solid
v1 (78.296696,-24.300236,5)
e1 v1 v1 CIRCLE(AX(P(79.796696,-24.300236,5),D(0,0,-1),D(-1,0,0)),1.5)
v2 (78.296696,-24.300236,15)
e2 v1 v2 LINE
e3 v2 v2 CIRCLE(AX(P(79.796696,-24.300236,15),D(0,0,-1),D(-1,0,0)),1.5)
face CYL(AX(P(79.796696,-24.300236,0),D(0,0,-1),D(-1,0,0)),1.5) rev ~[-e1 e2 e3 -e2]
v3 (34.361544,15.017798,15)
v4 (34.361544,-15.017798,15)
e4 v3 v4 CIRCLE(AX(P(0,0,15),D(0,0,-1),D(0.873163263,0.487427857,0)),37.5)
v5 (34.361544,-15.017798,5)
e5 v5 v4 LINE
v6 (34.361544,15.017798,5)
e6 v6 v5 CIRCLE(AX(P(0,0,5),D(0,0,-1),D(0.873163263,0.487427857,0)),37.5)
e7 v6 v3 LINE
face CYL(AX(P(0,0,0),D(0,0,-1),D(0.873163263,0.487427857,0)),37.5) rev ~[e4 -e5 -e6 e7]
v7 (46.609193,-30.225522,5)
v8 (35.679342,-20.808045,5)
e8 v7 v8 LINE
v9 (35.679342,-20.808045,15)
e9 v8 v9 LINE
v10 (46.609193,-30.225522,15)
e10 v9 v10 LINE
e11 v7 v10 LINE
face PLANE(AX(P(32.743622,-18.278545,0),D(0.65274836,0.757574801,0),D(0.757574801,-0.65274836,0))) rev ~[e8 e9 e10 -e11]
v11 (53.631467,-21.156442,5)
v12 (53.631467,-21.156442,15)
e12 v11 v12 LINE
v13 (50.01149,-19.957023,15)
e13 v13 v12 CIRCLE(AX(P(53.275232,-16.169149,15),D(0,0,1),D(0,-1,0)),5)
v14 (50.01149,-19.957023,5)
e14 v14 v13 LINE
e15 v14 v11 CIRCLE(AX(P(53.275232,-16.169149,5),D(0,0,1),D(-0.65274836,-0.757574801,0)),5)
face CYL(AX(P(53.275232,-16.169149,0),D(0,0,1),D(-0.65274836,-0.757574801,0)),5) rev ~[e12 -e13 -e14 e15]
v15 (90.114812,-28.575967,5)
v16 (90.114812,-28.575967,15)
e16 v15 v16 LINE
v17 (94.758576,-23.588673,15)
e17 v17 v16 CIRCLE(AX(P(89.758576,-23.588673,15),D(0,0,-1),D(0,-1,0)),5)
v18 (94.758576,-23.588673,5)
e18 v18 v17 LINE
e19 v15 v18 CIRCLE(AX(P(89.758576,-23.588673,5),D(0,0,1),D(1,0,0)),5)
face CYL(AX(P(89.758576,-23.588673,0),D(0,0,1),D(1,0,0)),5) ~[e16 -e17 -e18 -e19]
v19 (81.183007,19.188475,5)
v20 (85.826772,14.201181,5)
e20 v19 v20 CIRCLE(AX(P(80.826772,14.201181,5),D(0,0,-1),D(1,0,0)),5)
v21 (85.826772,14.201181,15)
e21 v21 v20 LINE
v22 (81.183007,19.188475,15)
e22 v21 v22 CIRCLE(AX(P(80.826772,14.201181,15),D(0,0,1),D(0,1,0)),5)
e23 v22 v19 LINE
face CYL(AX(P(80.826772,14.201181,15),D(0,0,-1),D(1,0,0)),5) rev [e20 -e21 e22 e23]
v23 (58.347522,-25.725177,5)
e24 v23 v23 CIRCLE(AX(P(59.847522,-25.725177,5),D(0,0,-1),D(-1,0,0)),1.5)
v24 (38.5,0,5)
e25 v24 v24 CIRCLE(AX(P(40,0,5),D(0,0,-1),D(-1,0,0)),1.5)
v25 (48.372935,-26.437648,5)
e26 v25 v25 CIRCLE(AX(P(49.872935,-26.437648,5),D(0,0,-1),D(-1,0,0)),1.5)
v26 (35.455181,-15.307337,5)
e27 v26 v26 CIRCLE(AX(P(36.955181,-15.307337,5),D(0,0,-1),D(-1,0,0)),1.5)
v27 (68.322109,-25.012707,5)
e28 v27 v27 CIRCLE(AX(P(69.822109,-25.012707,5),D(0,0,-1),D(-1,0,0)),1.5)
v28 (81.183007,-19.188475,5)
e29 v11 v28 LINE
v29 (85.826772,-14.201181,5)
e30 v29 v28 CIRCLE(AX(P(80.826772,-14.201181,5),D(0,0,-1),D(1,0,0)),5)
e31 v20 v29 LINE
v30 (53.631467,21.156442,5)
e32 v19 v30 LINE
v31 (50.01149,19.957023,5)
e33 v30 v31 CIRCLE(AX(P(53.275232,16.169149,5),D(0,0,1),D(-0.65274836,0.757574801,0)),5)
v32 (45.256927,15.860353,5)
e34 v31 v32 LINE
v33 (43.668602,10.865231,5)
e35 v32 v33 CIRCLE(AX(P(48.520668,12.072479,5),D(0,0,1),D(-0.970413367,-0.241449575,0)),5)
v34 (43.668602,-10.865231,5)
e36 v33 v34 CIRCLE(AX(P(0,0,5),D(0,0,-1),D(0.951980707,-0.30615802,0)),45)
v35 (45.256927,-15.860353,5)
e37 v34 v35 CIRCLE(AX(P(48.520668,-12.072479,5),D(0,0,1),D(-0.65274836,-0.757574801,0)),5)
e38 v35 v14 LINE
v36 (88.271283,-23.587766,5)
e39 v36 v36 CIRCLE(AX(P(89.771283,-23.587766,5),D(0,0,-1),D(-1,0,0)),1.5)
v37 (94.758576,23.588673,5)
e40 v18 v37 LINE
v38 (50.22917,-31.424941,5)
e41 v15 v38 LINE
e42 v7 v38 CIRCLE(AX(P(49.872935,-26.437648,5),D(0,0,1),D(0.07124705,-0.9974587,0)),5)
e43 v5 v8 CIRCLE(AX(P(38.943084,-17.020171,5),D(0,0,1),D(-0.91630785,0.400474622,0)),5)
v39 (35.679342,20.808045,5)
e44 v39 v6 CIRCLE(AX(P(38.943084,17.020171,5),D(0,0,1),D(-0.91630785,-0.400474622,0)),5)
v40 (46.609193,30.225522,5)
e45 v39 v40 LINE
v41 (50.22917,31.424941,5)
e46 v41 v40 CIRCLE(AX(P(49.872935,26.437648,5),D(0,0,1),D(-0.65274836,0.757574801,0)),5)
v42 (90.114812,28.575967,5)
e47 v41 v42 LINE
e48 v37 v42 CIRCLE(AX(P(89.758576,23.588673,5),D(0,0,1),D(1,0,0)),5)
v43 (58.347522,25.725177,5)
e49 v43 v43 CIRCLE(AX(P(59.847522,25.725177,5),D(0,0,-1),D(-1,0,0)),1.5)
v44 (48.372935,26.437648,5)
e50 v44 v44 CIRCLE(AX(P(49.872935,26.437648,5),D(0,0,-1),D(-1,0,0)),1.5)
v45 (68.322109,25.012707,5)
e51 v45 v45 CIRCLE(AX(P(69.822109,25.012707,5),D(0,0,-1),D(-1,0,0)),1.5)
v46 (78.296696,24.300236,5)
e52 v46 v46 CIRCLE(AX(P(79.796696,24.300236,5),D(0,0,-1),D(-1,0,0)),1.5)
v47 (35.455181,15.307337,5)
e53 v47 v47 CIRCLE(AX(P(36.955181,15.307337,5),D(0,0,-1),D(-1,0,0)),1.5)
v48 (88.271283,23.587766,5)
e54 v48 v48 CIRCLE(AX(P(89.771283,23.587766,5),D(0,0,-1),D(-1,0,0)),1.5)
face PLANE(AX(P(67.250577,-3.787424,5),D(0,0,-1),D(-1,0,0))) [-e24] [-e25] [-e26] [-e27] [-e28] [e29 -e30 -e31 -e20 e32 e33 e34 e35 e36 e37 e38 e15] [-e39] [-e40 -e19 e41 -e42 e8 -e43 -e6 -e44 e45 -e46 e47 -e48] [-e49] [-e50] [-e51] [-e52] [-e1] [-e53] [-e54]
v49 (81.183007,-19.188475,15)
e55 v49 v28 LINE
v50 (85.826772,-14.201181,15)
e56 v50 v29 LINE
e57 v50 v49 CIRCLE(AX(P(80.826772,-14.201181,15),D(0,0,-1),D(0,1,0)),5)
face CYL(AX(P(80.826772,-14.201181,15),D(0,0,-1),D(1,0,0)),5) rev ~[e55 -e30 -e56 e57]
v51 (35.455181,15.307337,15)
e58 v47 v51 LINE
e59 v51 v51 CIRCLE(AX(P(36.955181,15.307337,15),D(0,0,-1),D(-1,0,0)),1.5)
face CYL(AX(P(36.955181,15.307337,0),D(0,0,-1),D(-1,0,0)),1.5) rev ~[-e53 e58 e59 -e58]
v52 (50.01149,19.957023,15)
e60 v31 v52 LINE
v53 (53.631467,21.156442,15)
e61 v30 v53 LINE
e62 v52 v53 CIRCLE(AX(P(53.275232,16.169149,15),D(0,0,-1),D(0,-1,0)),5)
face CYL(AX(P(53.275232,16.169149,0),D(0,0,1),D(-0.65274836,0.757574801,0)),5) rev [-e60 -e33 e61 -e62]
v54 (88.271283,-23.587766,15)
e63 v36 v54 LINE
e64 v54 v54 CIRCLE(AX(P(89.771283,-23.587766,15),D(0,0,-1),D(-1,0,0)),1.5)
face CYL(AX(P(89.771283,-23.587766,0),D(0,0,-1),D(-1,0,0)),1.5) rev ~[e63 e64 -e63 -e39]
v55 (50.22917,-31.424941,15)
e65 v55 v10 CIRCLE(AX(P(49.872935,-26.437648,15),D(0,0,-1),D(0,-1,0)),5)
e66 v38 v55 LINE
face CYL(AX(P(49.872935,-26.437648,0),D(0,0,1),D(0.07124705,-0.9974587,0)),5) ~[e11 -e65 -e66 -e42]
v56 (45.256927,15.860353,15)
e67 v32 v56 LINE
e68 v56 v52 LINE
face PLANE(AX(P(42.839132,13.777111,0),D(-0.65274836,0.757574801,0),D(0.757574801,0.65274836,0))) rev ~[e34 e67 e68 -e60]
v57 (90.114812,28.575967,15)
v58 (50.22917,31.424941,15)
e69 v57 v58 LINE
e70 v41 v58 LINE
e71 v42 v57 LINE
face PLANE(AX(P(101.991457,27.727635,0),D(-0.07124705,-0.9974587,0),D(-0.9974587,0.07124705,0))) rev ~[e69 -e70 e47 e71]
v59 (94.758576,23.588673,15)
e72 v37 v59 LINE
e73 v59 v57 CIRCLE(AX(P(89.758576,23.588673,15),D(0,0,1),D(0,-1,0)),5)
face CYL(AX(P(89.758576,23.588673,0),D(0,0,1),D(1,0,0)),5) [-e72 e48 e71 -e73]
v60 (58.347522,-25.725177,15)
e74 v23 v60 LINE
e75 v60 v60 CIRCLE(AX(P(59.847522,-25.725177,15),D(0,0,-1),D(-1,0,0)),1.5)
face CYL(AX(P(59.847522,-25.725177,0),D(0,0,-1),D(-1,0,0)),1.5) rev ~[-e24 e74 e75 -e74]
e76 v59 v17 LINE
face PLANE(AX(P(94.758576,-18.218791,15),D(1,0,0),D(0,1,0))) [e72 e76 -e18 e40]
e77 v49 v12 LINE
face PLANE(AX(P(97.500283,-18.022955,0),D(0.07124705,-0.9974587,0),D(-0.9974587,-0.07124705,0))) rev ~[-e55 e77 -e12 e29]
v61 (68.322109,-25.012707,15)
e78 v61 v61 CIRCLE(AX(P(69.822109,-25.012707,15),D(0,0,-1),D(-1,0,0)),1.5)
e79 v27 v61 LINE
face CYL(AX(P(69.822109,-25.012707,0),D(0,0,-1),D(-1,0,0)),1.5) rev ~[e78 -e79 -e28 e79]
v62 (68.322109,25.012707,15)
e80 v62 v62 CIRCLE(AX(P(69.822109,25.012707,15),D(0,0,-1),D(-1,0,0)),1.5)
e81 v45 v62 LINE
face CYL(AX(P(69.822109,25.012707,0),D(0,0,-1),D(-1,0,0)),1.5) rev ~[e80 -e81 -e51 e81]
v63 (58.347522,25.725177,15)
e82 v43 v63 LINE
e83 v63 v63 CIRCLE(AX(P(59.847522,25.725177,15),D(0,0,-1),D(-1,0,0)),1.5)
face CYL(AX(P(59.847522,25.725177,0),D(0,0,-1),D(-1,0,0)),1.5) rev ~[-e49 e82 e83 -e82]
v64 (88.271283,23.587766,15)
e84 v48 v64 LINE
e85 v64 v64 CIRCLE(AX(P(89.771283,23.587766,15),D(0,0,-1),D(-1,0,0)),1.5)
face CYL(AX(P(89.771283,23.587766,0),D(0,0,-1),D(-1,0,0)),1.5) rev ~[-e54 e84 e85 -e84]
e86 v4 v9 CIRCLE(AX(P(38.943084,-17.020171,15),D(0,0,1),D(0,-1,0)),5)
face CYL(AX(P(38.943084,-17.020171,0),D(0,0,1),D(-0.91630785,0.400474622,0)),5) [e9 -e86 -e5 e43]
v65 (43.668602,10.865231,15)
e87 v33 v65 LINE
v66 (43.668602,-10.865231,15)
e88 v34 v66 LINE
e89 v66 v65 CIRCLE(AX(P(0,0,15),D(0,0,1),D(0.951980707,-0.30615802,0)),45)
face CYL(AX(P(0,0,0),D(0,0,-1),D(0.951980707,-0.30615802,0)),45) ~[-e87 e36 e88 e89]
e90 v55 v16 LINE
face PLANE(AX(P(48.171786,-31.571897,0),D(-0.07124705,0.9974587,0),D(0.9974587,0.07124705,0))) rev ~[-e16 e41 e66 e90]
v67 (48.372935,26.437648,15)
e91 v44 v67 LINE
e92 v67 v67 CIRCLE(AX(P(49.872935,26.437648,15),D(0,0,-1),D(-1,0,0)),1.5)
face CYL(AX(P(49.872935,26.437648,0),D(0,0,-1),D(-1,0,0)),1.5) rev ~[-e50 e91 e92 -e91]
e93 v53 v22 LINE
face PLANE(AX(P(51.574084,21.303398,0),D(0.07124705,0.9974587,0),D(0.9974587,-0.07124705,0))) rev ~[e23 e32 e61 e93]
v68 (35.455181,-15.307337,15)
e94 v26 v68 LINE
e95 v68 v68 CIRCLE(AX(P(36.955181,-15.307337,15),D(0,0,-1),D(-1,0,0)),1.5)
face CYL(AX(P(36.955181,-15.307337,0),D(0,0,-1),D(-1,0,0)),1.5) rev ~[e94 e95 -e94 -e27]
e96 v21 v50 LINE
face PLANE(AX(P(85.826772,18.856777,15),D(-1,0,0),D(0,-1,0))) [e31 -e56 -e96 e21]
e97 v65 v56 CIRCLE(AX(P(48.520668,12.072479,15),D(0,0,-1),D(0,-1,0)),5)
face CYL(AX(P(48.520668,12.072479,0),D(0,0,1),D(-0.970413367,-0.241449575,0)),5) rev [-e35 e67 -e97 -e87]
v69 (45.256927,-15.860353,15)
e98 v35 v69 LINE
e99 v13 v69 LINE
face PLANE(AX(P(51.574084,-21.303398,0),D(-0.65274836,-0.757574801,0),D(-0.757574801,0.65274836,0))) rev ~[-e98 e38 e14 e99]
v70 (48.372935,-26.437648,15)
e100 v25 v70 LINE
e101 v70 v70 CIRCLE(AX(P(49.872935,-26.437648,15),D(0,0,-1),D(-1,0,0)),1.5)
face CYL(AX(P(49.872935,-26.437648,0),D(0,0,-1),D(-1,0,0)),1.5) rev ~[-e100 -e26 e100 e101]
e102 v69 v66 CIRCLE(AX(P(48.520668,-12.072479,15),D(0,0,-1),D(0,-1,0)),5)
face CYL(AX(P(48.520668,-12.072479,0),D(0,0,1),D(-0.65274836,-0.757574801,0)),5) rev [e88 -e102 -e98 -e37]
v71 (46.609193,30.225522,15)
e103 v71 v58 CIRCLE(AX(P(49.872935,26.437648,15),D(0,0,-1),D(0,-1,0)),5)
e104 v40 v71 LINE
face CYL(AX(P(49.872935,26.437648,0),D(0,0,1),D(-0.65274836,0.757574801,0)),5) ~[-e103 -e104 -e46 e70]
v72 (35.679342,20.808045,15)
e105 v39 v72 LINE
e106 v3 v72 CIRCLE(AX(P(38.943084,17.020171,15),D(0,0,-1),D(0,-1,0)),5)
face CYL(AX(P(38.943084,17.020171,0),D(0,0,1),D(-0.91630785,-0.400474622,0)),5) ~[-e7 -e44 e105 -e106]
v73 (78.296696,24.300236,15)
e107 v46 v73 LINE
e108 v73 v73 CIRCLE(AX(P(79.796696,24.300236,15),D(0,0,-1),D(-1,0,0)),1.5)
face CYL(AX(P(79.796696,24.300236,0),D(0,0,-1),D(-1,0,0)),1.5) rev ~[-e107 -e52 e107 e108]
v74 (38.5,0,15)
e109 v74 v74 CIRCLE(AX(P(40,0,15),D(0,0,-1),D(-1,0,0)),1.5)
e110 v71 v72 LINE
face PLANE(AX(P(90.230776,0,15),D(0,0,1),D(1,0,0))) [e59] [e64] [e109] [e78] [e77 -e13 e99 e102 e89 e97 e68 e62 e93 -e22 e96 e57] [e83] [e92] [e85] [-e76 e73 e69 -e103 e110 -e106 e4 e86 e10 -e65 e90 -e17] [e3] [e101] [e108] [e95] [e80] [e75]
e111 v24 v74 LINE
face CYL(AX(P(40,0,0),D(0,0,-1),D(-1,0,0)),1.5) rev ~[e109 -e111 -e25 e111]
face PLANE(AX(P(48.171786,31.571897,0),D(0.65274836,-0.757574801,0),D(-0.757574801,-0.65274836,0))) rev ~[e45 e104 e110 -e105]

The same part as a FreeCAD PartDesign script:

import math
import FreeCAD as App
import Part
import Sketcher
Q = App.Units.Quantity


def edges_at(feature, points):
    """Names of the edges that pass closest to the given points."""
    edges = feature.Shape.Edges
    near = lambda p: min(range(len(edges)), key=lambda i: edges[i].distToShape(Part.Vertex(*p))[0])
    return sorted({f"Edge{near(p) + 1}" for p in points})


def add_polygon(sketch, points):
    """Adds a closed chain of lines whose ends are joined by coincident constraints."""
    first, n = sketch.GeometryCount, len(points)
    for a, b in zip(points, points[1:] + points[:1]):
        sketch.addGeometry(Part.LineSegment(App.Vector(*a, 0), App.Vector(*b, 0)), False)
    for i in range(n):
        sketch.addConstraint(Sketcher.Constraint("Coincident", first + i, 2, first + (i + 1) % n, 1))

doc = App.newDocument("Part")
body = doc.addObject("PartDesign::Body", "Body")

# Sketch on XY plane
sketch1 = doc.addObject("Sketcher::SketchObject", "Sketch")
body.addObject(sketch1)
sketch1.AttachmentSupport = (doc.XY_Plane, [""])
sketch1.MapMode = "FlatFace"
sketch1.addGeometry([
    Part.LineSegment(App.Vector(102, -28, 0), App.Vector(114, -15, 0)),  # 0
    Part.ArcOfCircle(Part.Circle(App.Vector(140, 0, 0), App.Vector(0, 0, 1), 30), math.radians(149), math.radians(211)),  # 1
    Part.LineSegment(App.Vector(114, 15, 0), App.Vector(102, 28, 0)),  # 2
    Part.LineSegment(App.Vector(102, 28, 0), App.Vector(48, 32, 0)),  # 3
    Part.LineSegment(App.Vector(48, 32, 0), App.Vector(33, 18, 0)),  # 4
    Part.ArcOfCircle(Part.Circle(App.Vector(0, 0, 0), App.Vector(0, 0, 1), 38), math.radians(-29), math.radians(29)),  # 5
    Part.LineSegment(App.Vector(33, -18, 0), App.Vector(48, -32, 0)),  # 6
    Part.LineSegment(App.Vector(48, -32, 0), App.Vector(102, -28, 0)),  # 7
    Part.LineSegment(App.Vector(52, -21, 0), App.Vector(43, -14, 0)),  # 8
    Part.ArcOfCircle(Part.Circle(App.Vector(0, 0, 0), App.Vector(0, 0, 1), 45), math.radians(-18), math.radians(18)),  # 9
    Part.LineSegment(App.Vector(43, 14, 0), App.Vector(52, 21, 0)),  # 10
    Part.LineSegment(App.Vector(52, 21, 0), App.Vector(98, 18, 0)),  # 11
    Part.LineSegment(App.Vector(98, 18, 0), App.Vector(106, 9, 0)),  # 12
    Part.ArcOfCircle(Part.Circle(App.Vector(140, 0, 0), App.Vector(0, 0, 1), 35), math.radians(165), math.radians(195)),  # 13
    Part.LineSegment(App.Vector(106, -9, 0), App.Vector(98, -18, 0)),  # 14
    Part.LineSegment(App.Vector(98, -18, 0), App.Vector(52, -21, 0)),  # 15
], False)
sketch1.addConstraint([
    Sketcher.Constraint("Coincident", 0, 2, 1, 2),
    Sketcher.Constraint("Coincident", 1, 1, 2, 1),
    Sketcher.Constraint("Coincident", 2, 2, 3, 1),
    Sketcher.Constraint("Coincident", 3, 2, 4, 1),
    Sketcher.Constraint("Coincident", 4, 2, 5, 2),
    Sketcher.Constraint("Coincident", 5, 1, 6, 1),
    Sketcher.Constraint("Coincident", 6, 2, 7, 1),
    Sketcher.Constraint("Coincident", 7, 2, 0, 1),
    Sketcher.Constraint("Coincident", 8, 2, 9, 1),
    Sketcher.Constraint("Coincident", 9, 2, 10, 1),
    Sketcher.Constraint("Coincident", 10, 2, 11, 1),
    Sketcher.Constraint("Coincident", 11, 2, 12, 1),
    Sketcher.Constraint("Coincident", 12, 2, 13, 1),
    Sketcher.Constraint("Coincident", 13, 2, 14, 1),
    Sketcher.Constraint("Coincident", 14, 2, 15, 1),
    Sketcher.Constraint("Coincident", 15, 2, 8, 1),
    Sketcher.Constraint("Coincident", 5, 3, -1, 1),
    Sketcher.Constraint("Coincident", 9, 3, -1, 1),
    Sketcher.Constraint("Coincident", 13, 3, 1, 3),
    Sketcher.Constraint("Symmetric", 0, 2, 1, 1, -1),
    Sketcher.Constraint("Symmetric", 3, 2, 6, 2, -1),
    Sketcher.Constraint("Symmetric", 2, 2, 7, 2, -1),
    Sketcher.Constraint("Symmetric", 11, 2, 14, 2, -1),
    Sketcher.Constraint("Symmetric", 10, 2, 15, 2, -1),
    Sketcher.Constraint("Parallel", 6, 8),
    Sketcher.Constraint("Parallel", 4, 10),
    Sketcher.Constraint("Parallel", 3, 11),
    Sketcher.Constraint("Parallel", 2, 12),
    Sketcher.Constraint("Parallel", 0, 14),
    Sketcher.Constraint("Vertical", 4, 2, 5, 1),
    Sketcher.Constraint("Radius", 1, Q("30 mm")),
    Sketcher.Constraint("Radius", 9, Q("45 mm")),
    Sketcher.Constraint("Radius", 13, Q("35 mm")),
    Sketcher.Constraint("Radius", 5, Q("37.5 mm")),
    Sketcher.Constraint("DistanceX", -1, 1, 1, 3, Q("140 mm")),
    Sketcher.Constraint("DistanceY", -1, 1, 12, 2, Q("9.132001 mm")),
    Sketcher.Constraint("DistanceY", -1, 1, 10, 2, Q("21.303398 mm")),
    Sketcher.Constraint("DistanceY", 10, 2, 3, 2, Q("10.268499 mm")),
    Sketcher.Constraint("DistanceX", 10, 2, 11, 2, Q("45.9262 mm")),
    Sketcher.Constraint("Distance", 3, Q("53.956791 mm")),
    Sketcher.Constraint("Distance", 8, Q("11.530151 mm")),
    Sketcher.Constraint("Distance", 11, Q("46.043209 mm")),
    Sketcher.Constraint("DistanceX", -1, 1, 8, 2, Q("42.839132 mm")),
    Sketcher.Constraint("DistanceX", 2, 2, 1, 1, Q("12.193609 mm")),
])
pad1 = doc.addObject("PartDesign::Pad", "Pad")
body.addObject(pad1)
pad1.Profile = sketch1
pad1.Length = 15
doc.recompute()

fillet = doc.addObject("PartDesign::Fillet", "Fillet")
body.addObject(fillet)
fillet.Base = (pad1, edges_at(pad1, [(101.991, 27.728, 7.5)]))
fillet.Radius = 5
doc.recompute()

fillet2 = doc.addObject("PartDesign::Fillet", "Fillet001")
body.addObject(fillet2)
fillet2.Base = (fillet, edges_at(fillet, [(114.185, 15.284, 7.5)]))
fillet2.Radius = 5
doc.recompute()

fillet3 = doc.addObject("PartDesign::Fillet", "Fillet002")
body.addObject(fillet3)
fillet3.Base = (fillet2, edges_at(fillet2, [(114.185, -15.284, 7.5)]))
fillet3.Radius = 5
doc.recompute()

fillet4 = doc.addObject("PartDesign::Fillet", "Fillet003")
body.addObject(fillet4)
fillet4.Base = (fillet3, edges_at(fillet3, [(101.991, -27.728, 7.5)]))
fillet4.Radius = 5
doc.recompute()

fillet5 = doc.addObject("PartDesign::Fillet", "Fillet004")
body.addObject(fillet5)
fillet5.Base = (fillet4, edges_at(fillet4, [(48.172, -31.572, 7.5)]))
fillet5.Radius = 5
doc.recompute()

fillet6 = doc.addObject("PartDesign::Fillet", "Fillet005")
body.addObject(fillet6)
fillet6.Base = (fillet5, edges_at(fillet5, [(48.172, 31.572, 7.5)]))
fillet6.Radius = 5
doc.recompute()

fillet7 = doc.addObject("PartDesign::Fillet", "Fillet006")
body.addObject(fillet7)
fillet7.Base = (fillet6, edges_at(fillet6, [(32.744, -18.279, 7.5)]))
fillet7.Radius = 5
doc.recompute()

fillet8 = doc.addObject("PartDesign::Fillet", "Fillet007")
body.addObject(fillet8)
fillet8.Base = (fillet7, edges_at(fillet7, [(32.744, 18.279, 7.5)]))
fillet8.Radius = 5
doc.recompute()

fillet9 = doc.addObject("PartDesign::Fillet", "Fillet008")
body.addObject(fillet9)
fillet9.Base = (fillet8, edges_at(fillet8, [(97.5, -18.023, 7.5)]))
fillet9.Radius = 5
doc.recompute()

fillet10 = doc.addObject("PartDesign::Fillet", "Fillet009")
body.addObject(fillet10)
fillet10.Base = (fillet9, edges_at(fillet9, [(106.212, -9.132, 7.5)]))
fillet10.Radius = 5
doc.recompute()

fillet11 = doc.addObject("PartDesign::Fillet", "Fillet010")
body.addObject(fillet11)
fillet11.Base = (fillet10, edges_at(fillet10, [(106.212, 9.132, 7.5)]))
fillet11.Radius = 5
doc.recompute()

fillet12 = doc.addObject("PartDesign::Fillet", "Fillet011")
body.addObject(fillet12)
fillet12.Base = (fillet11, edges_at(fillet11, [(97.5, 18.023, 7.5)]))
fillet12.Radius = 5
doc.recompute()

fillet13 = doc.addObject("PartDesign::Fillet", "Fillet012")
body.addObject(fillet13)
fillet13.Base = (fillet12, edges_at(fillet12, [(51.574, -21.303, 7.5)]))
fillet13.Radius = 5
doc.recompute()

fillet14 = doc.addObject("PartDesign::Fillet", "Fillet013")
body.addObject(fillet14)
fillet14.Base = (fillet13, edges_at(fillet13, [(42.839, -13.777, 7.5)]))
fillet14.Radius = 5
doc.recompute()

fillet15 = doc.addObject("PartDesign::Fillet", "Fillet014")
body.addObject(fillet15)
fillet15.Base = (fillet14, edges_at(fillet14, [(42.839, 13.777, 7.5)]))
fillet15.Radius = 5
doc.recompute()

fillet16 = doc.addObject("PartDesign::Fillet", "Fillet015")
body.addObject(fillet16)
fillet16.Base = (fillet15, edges_at(fillet15, [(51.574, 21.303, 7.5)]))
fillet16.Radius = 5

# Sketch on XY plane
sketch2 = doc.addObject("Sketcher::SketchObject", "Sketch001")
body.addObject(sketch2)
sketch2.AttachmentSupport = (doc.XY_Plane, [""])
sketch2.MapMode = "FlatFace"
sketch2.addGeometry([
    Part.Circle(App.Vector(37, 15.3, 0), App.Vector(0, 0, 1), 1.5),  # 0
    Part.Circle(App.Vector(40, 0, 0), App.Vector(0, 0, 1), 1.5),  # 1
    Part.Circle(App.Vector(37, -15.3, 0), App.Vector(0, 0, 1), 1.5),  # 2
    Part.Circle(App.Vector(49.9, -26.4, 0), App.Vector(0, 0, 1), 1.5),  # 3
    Part.Circle(App.Vector(49.9, 26.4, 0), App.Vector(0, 0, 1), 1.5),  # 4
    Part.Circle(App.Vector(99.7, 22.9, 0), App.Vector(0, 0, 1), 1.5),  # 5
    Part.Circle(App.Vector(99.7, -22.9, 0), App.Vector(0, 0, 1), 1.5),  # 6
    Part.Circle(App.Vector(110, 12.4, 0), App.Vector(0, 0, 1), 1.5),  # 7
    Part.Circle(App.Vector(107.5, 0, 0), App.Vector(0, 0, 1), 1.5),  # 8
    Part.Circle(App.Vector(110, -12.4, 0), App.Vector(0, 0, 1), 1.5),  # 9
    Part.Circle(App.Vector(59.8, 25.7, 0), App.Vector(0, 0, 1), 1.5),  # 10
    Part.Circle(App.Vector(69.8, 25, 0), App.Vector(0, 0, 1), 1.5),  # 11
    Part.Circle(App.Vector(79.8, 24.3, 0), App.Vector(0, 0, 1), 1.5),  # 12
    Part.Circle(App.Vector(89.8, 23.6, 0), App.Vector(0, 0, 1), 1.5),  # 13
    Part.Circle(App.Vector(89.8, -23.6, 0), App.Vector(0, 0, 1), 1.5),  # 14
    Part.Circle(App.Vector(79.8, -24.3, 0), App.Vector(0, 0, 1), 1.5),  # 15
    Part.Circle(App.Vector(69.8, -25, 0), App.Vector(0, 0, 1), 1.5),  # 16
    Part.Circle(App.Vector(59.8, -25.7, 0), App.Vector(0, 0, 1), 1.5),  # 17
], False)
sketch2.addConstraint([
    Sketcher.Constraint("Equal", 0, 1),
    Sketcher.Constraint("Equal", 1, 2),
    Sketcher.Constraint("Equal", 2, 3),
    Sketcher.Constraint("Equal", 3, 4),
    Sketcher.Constraint("Equal", 4, 5),
    Sketcher.Constraint("Equal", 5, 6),
    Sketcher.Constraint("Equal", 6, 7),
    Sketcher.Constraint("Equal", 7, 8),
    Sketcher.Constraint("Equal", 8, 9),
    Sketcher.Constraint("Equal", 9, 10),
    Sketcher.Constraint("Equal", 10, 11),
    Sketcher.Constraint("Equal", 11, 12),
    Sketcher.Constraint("Equal", 12, 13),
    Sketcher.Constraint("Equal", 13, 14),
    Sketcher.Constraint("Equal", 14, 15),
    Sketcher.Constraint("Equal", 15, 16),
    Sketcher.Constraint("Equal", 16, 17),
    Sketcher.Constraint("Symmetric", 0, 3, 2, 3, -1),
    Sketcher.Constraint("Symmetric", 3, 3, 4, 3, -1),
    Sketcher.Constraint("Symmetric", 5, 3, 6, 3, -1),
    Sketcher.Constraint("Symmetric", 7, 3, 9, 3, -1),
    Sketcher.Constraint("Symmetric", 13, 3, 14, 3, -1),
    Sketcher.Constraint("Symmetric", 12, 3, 15, 3, -1),
    Sketcher.Constraint("Symmetric", 11, 3, 16, 3, -1),
    Sketcher.Constraint("Symmetric", 10, 3, 17, 3, -1),
    Sketcher.Constraint("PointOnObject", 1, 3, -1),
    Sketcher.Constraint("PointOnObject", 8, 3, -1),
    Sketcher.Constraint("Diameter", 0, Q("3 mm")),
    Sketcher.Constraint("DistanceX", -1, 1, 1, 3, Q("40 mm")),
    Sketcher.Constraint("DistanceX", -1, 1, 8, 3, Q("107.5 mm")),
    Sketcher.Constraint("DistanceX", -1, 1, 0, 3, Q("36.955181 mm")),
    Sketcher.Constraint("DistanceX", -1, 1, 5, 3, Q("99.74587 mm")),
    Sketcher.Constraint("DistanceY", -1, 1, 7, 3, Q("12.437212 mm")),
    Sketcher.Constraint("DistanceX", -1, 1, 10, 3, Q("59.847522 mm")),
    Sketcher.Constraint("DistanceX", -1, 1, 11, 3, Q("69.822109 mm")),
    Sketcher.Constraint("DistanceY", 3, 3, 2, 3, Q("11.13031 mm")),
    Sketcher.Constraint("DistanceY", 6, 3, 5, 3, Q("45.75059 mm")),
    Sketcher.Constraint("DistanceX", 4, 3, 7, 3, Q("60.10098 mm")),
    Sketcher.Constraint("DistanceY", 3, 3, 7, 3, Q("38.874859 mm")),
    Sketcher.Constraint("DistanceY", 10, 3, 4, 3, Q("0.712471 mm")),
    Sketcher.Constraint("DistanceY", 11, 3, 10, 3, Q("0.71247 mm")),
    Sketcher.Constraint("DistanceY", 12, 3, 11, 3, Q("0.712471 mm")),
    Sketcher.Constraint("DistanceX", 4, 3, 12, 3, Q("29.923761 mm")),
    Sketcher.Constraint("DistanceY", 5, 3, 13, 3, Q("0.71247 mm")),
    Sketcher.Constraint("DistanceX", 17, 3, 14, 3, Q("29.923761 mm")),
    Sketcher.Constraint("DistanceX", -1, 1, 3, 3, Q("49.872935 mm")),
])
pocket1 = doc.addObject("PartDesign::Pocket", "Pocket")
body.addObject(pocket1)
pocket1.Profile = sketch2
pocket1.Length = 15
pocket1.Reversed = True

# Sketch on XY plane
sketch3 = doc.addObject("Sketcher::SketchObject", "Sketch002")
body.addObject(sketch3)
sketch3.AttachmentSupport = (doc.XY_Plane, [""])
sketch3.MapMode = "FlatFace"
sketch3.addGeometry([
    Part.ArcOfCircle(Part.Circle(App.Vector(99.7, 22.9, 0), App.Vector(0, 0, 1), 5), math.radians(44), math.radians(86)),  # 0
    Part.LineSegment(App.Vector(100.1, 27.9, 0), App.Vector(94.8, 28.2, 0)),  # 1
    Part.LineSegment(App.Vector(94.8, 28.2, 0), App.Vector(94.8, 18.2, 0)),  # 2
    Part.LineSegment(App.Vector(94.8, 18.2, 0), App.Vector(95.6, 18.2, 0)),  # 3
    Part.ArcOfCircle(Part.Circle(App.Vector(95.3, 13.2, 0), App.Vector(0, 0, 1), 5), math.radians(44), math.radians(86)),  # 4
    Part.LineSegment(App.Vector(98.8, 16.7, 0), App.Vector(100.1, 15.4, 0)),  # 5
    Part.LineSegment(App.Vector(100.1, 15.4, 0), App.Vector(104.3, 11.1, 0)),  # 6
    Part.ArcOfCircle(Part.Circle(App.Vector(100.7, 7.6, 0), App.Vector(0, 0, 1), 5), math.radians(-11), math.radians(44)),  # 7
    Part.ArcOfCircle(Part.Circle(App.Vector(140, 0, 0), App.Vector(0, 0, 1), 35), math.radians(169), math.radians(191)),  # 8
    Part.ArcOfCircle(Part.Circle(App.Vector(100.7, -7.6, 0), App.Vector(0, 0, 1), 5), math.radians(-44), math.radians(11)),  # 9
    Part.LineSegment(App.Vector(104.3, -11.1, 0), App.Vector(100.1, -15.4, 0)),  # 10
    Part.LineSegment(App.Vector(100.1, -15.4, 0), App.Vector(98.8, -16.7, 0)),  # 11
    Part.ArcOfCircle(Part.Circle(App.Vector(95.3, -13.2, 0), App.Vector(0, 0, 1), 5), math.radians(-86), math.radians(-44)),  # 12
    Part.LineSegment(App.Vector(95.6, -18.2, 0), App.Vector(94.8, -18.2, 0)),  # 13
    Part.LineSegment(App.Vector(94.8, -18.2, 0), App.Vector(94.8, -28.2, 0)),  # 14
    Part.LineSegment(App.Vector(94.8, -28.2, 0), App.Vector(100.1, -27.9, 0)),  # 15
    Part.ArcOfCircle(Part.Circle(App.Vector(99.7, -22.9, 0), App.Vector(0, 0, 1), 5), math.radians(-86), math.radians(-44)),  # 16
    Part.LineSegment(App.Vector(103.3, -26.4, 0), App.Vector(111.7, -17.9, 0)),  # 17
    Part.ArcOfCircle(Part.Circle(App.Vector(108.1, -14.4, 0), App.Vector(0, 0, 1), 5), math.radians(-44), math.radians(24)),  # 18
    Part.ArcOfCircle(Part.Circle(App.Vector(140, 0, 0), App.Vector(0, 0, 1), 30), math.radians(156), math.radians(204)),  # 19
    Part.ArcOfCircle(Part.Circle(App.Vector(108.1, 14.4, 0), App.Vector(0, 0, 1), 5), math.radians(-24), math.radians(44)),  # 20
    Part.LineSegment(App.Vector(111.7, 17.9, 0), App.Vector(103.3, 26.4, 0)),  # 21
    Part.ArcOfCircle(Part.Circle(App.Vector(99.7, 22.9, 0), App.Vector(0, 0, 1), 1.5), math.radians(0), math.radians(76)),  # 22
    Part.ArcOfCircle(Part.Circle(App.Vector(99.7, 22.9, 0), App.Vector(0, 0, 1), 1.5), math.radians(176), math.radians(360)),  # 23
    Part.ArcOfCircle(Part.Circle(App.Vector(99.7, 22.9, 0), App.Vector(0, 0, 1), 1.5), math.radians(76), math.radians(176)),  # 24
    Part.ArcOfCircle(Part.Circle(App.Vector(99.7, -22.9, 0), App.Vector(0, 0, 1), 1.5), math.radians(-76), math.radians(0)),  # 25
    Part.ArcOfCircle(Part.Circle(App.Vector(99.7, -22.9, 0), App.Vector(0, 0, 1), 1.5), math.radians(-176), math.radians(-76)),  # 26
    Part.ArcOfCircle(Part.Circle(App.Vector(99.7, -22.9, 0), App.Vector(0, 0, 1), 1.5), math.radians(0), math.radians(184)),  # 27
    Part.Circle(App.Vector(110, -12.4, 0), App.Vector(0, 0, 1), 1.5),  # 28
    Part.Circle(App.Vector(107.5, 0, 0), App.Vector(0, 0, 1), 1.5),  # 29
    Part.Circle(App.Vector(110, 12.4, 0), App.Vector(0, 0, 1), 1.5),  # 30
], False)
sketch3.addConstraint([
    Sketcher.Constraint("Tangent", 0, 2, 1, 1),
    Sketcher.Constraint("Coincident", 1, 2, 2, 1),
    Sketcher.Constraint("Coincident", 2, 2, 3, 1),
    Sketcher.Constraint("Tangent", 3, 2, 4, 2),
    Sketcher.Constraint("Tangent", 4, 1, 5, 1),
    Sketcher.Constraint("Coincident", 5, 2, 6, 1),
    Sketcher.Constraint("Tangent", 6, 2, 7, 2),
    Sketcher.Constraint("Tangent", 7, 1, 8, 1),
    Sketcher.Constraint("Tangent", 8, 2, 9, 2),
    Sketcher.Constraint("Tangent", 9, 1, 10, 1),
    Sketcher.Constraint("Coincident", 10, 2, 11, 1),
    Sketcher.Constraint("Tangent", 11, 2, 12, 2),
    Sketcher.Constraint("Tangent", 12, 1, 13, 1),
    Sketcher.Constraint("Coincident", 13, 2, 14, 1),
    Sketcher.Constraint("Coincident", 14, 2, 15, 1),
    Sketcher.Constraint("Tangent", 15, 2, 16, 1),
    Sketcher.Constraint("Tangent", 16, 2, 17, 1),
    Sketcher.Constraint("Tangent", 17, 2, 18, 1),
    Sketcher.Constraint("Tangent", 18, 2, 19, 2),
    Sketcher.Constraint("Tangent", 19, 1, 20, 1),
    Sketcher.Constraint("Tangent", 20, 2, 21, 1),
    Sketcher.Constraint("Tangent", 21, 2, 0, 1),
    Sketcher.Constraint("Tangent", 22, 1, 23, 2),
    Sketcher.Constraint("Tangent", 23, 1, 24, 2),
    Sketcher.Constraint("Tangent", 24, 1, 22, 2),
    Sketcher.Constraint("Tangent", 25, 1, 26, 2),
    Sketcher.Constraint("Tangent", 26, 1, 27, 2),
    Sketcher.Constraint("Tangent", 27, 1, 25, 2),
    Sketcher.Constraint("Vertical", 2),
    Sketcher.Constraint("Vertical", 14),
    Sketcher.Constraint("Coincident", 19, 3, 8, 3),
    Sketcher.Constraint("Coincident", 22, 3, 0, 3),
    Sketcher.Constraint("Coincident", 25, 3, 16, 3),
    Sketcher.Constraint("Equal", 0, 4),
    Sketcher.Constraint("Equal", 4, 7),
    Sketcher.Constraint("Equal", 7, 9),
    Sketcher.Constraint("Equal", 9, 12),
    Sketcher.Constraint("Equal", 12, 16),
    Sketcher.Constraint("Equal", 16, 18),
    Sketcher.Constraint("Equal", 18, 20),
    Sketcher.Constraint("Equal", 24, 25),
    Sketcher.Constraint("Equal", 27, 28),
    Sketcher.Constraint("Equal", 28, 29),
    Sketcher.Constraint("Equal", 29, 30),
    Sketcher.Constraint("Symmetric", 7, 3, 9, 3, -1),
    Sketcher.Constraint("Symmetric", 4, 3, 12, 3, -1),
    Sketcher.Constraint("Symmetric", 0, 3, 16, 3, -1),
    Sketcher.Constraint("Symmetric", 28, 3, 30, 3, -1),
    Sketcher.Constraint("Symmetric", 5, 2, 10, 2, -1),
    Sketcher.Constraint("Symmetric", 2, 2, 13, 2, -1),
    Sketcher.Constraint("PointOnObject", 29, 3, -1),
    Sketcher.Constraint("Parallel", 1, 3),
    Sketcher.Constraint("Parallel", 5, 6),
    Sketcher.Constraint("Parallel", 13, 15),
    Sketcher.Constraint("Parallel", 11, 17),
    Sketcher.Constraint("Parallel", 6, 21),
    Sketcher.Constraint("Horizontal", 24, 3, 22, 1),
    Sketcher.Constraint("Horizontal", 26, 3, 27, 1),
    Sketcher.Constraint("Vertical", 0, 2, 5, 2),
    Sketcher.Constraint("Vertical", 15, 2, 24, 1),
    Sketcher.Constraint("Vertical", 24, 1, 25, 1),
    Sketcher.Constraint("Vertical", 23, 1, 26, 1),
    Sketcher.Constraint("Diameter", 28, Q("3 mm")),
    Sketcher.Constraint("Radius", 0, Q("5 mm")),
    Sketcher.Constraint("Radius", 8, Q("35 mm")),
    Sketcher.Constraint("Radius", 19, Q("30 mm")),
    Sketcher.Constraint("DistanceX", -1, 1, 8, 3, Q("140 mm")),
    Sketcher.Constraint("DistanceX", -1, 1, 29, 3, Q("107.5 mm")),
    Sketcher.Constraint("DistanceY", -1, 1, 7, 1, Q("6.638501 mm")),
    Sketcher.Constraint("DistanceX", 4, 3, 7, 3, Q("5.471399 mm")),
    Sketcher.Constraint("DistanceY", 18, 3, 12, 3, Q("1.195199 mm")),
    Sketcher.Constraint("DistanceX", 8, 2, 18, 2, Q("7.008198 mm")),
    Sketcher.Constraint("Distance", 5, Q("1.823339 mm")),
    Sketcher.Constraint("Distance", 17, Q("11.91376 mm")),
    Sketcher.Constraint("DistanceY", 28, 3, -1, 1, Q("12.437212 mm")),
    Sketcher.Constraint("DistanceY", -1, 1, 1, 2, Q("28.244269 mm")),
    Sketcher.Constraint("DistanceX", -1, 1, 23, 1, Q("98.249682 mm")),
    Sketcher.Constraint("DistanceX", 9, 3, 28, 3, Q("9.24782 mm")),
])
pocket2 = doc.addObject("PartDesign::Pocket", "Pocket001")
body.addObject(pocket2)
pocket2.Profile = sketch3
pocket2.Length = 15
pocket2.Reversed = True

# Sketch on XY plane
sketch4 = doc.addObject("Sketcher::SketchObject", "Sketch003")
body.addObject(sketch4)
sketch4.AttachmentSupport = (doc.XY_Plane, [""])
sketch4.MapMode = "FlatFace"
sketch4.AttachmentOffset = App.Placement(App.Vector(0, 0, 15), App.Rotation())
add_polygon(sketch4, [(95, -18), (95, 18), (86, 19), (86, -19)])  # lines 0-3
sketch4.addConstraint([
    Sketcher.Constraint("Vertical", 0),
    Sketcher.Constraint("Vertical", 2),
    Sketcher.Constraint("Equal", 1, 3),
    Sketcher.Constraint("Distance", 1, Q("8.954561 mm")),
    Sketcher.Constraint("DistanceY", 0, 1, 0, 2, Q("36.437583 mm")),
    Sketcher.Constraint("DistanceY", 2, 2, 2, 1, Q("37.713555 mm")),
    Sketcher.Constraint("DistanceY", -1, 1, 0, 2, Q("18.218791 mm")),
    Sketcher.Constraint("DistanceX", -1, 1, 1, 2, Q("85.826772 mm")),
])
pad2 = doc.addObject("PartDesign::Pad", "Pad001")
body.addObject(pad2)
pad2.Profile = sketch4
pad2.Length = 15
pad2.Reversed = True
doc.recompute()

fillet17 = doc.addObject("PartDesign::Fillet", "Fillet016")
body.addObject(fillet17)
fillet17.Base = (pad2, edges_at(pad2, [(94.759, 28.244, 7.5)]))
fillet17.Radius = 5
doc.recompute()

fillet18 = doc.addObject("PartDesign::Fillet", "Fillet017")
body.addObject(fillet18)
fillet18.Base = (fillet17, edges_at(fillet17, [(94.759, -28.244, 7.5)]))
fillet18.Radius = 5
doc.recompute()

fillet19 = doc.addObject("PartDesign::Fillet", "Fillet018")
body.addObject(fillet19)
fillet19.Base = (fillet18, edges_at(fillet18, [(85.827, 18.857, 7.5)]))
fillet19.Radius = 5
doc.recompute()

fillet20 = doc.addObject("PartDesign::Fillet", "Fillet019")
body.addObject(fillet20)
fillet20.Base = (fillet19, edges_at(fillet19, [(85.827, -18.857, 7.5)]))
fillet20.Radius = 5

# Sketch on XY plane
sketch5 = doc.addObject("Sketcher::SketchObject", "Sketch004")
body.addObject(sketch5)
sketch5.AttachmentSupport = (doc.XY_Plane, [""])
sketch5.MapMode = "FlatFace"
add_polygon(sketch5, [(116, 32), (116, -40), (19, -40), (19, 32)])  # lines 0-3
sketch5.addConstraint([
    Sketcher.Constraint("Vertical", 0),
    Sketcher.Constraint("Horizontal", 1),
    Sketcher.Constraint("Vertical", 2),
    Sketcher.Constraint("Horizontal", 3),
    Sketcher.Constraint("DistanceX", 1, 2, 1, 1, Q("96.520141 mm")),
    Sketcher.Constraint("DistanceY", 0, 2, 0, 1, Q("72.316133 mm")),
    Sketcher.Constraint("DistanceY", 0, 2, -1, 1, Q("39.945491 mm")),
    Sketcher.Constraint("DistanceX", -1, 1, 0, 2, Q("115.510648 mm")),
])
pocket3 = doc.addObject("PartDesign::Pocket", "Pocket002")
body.addObject(pocket3)
pocket3.Profile = sketch5
pocket3.Length = 5
pocket3.Reversed = True

doc.recompute()
